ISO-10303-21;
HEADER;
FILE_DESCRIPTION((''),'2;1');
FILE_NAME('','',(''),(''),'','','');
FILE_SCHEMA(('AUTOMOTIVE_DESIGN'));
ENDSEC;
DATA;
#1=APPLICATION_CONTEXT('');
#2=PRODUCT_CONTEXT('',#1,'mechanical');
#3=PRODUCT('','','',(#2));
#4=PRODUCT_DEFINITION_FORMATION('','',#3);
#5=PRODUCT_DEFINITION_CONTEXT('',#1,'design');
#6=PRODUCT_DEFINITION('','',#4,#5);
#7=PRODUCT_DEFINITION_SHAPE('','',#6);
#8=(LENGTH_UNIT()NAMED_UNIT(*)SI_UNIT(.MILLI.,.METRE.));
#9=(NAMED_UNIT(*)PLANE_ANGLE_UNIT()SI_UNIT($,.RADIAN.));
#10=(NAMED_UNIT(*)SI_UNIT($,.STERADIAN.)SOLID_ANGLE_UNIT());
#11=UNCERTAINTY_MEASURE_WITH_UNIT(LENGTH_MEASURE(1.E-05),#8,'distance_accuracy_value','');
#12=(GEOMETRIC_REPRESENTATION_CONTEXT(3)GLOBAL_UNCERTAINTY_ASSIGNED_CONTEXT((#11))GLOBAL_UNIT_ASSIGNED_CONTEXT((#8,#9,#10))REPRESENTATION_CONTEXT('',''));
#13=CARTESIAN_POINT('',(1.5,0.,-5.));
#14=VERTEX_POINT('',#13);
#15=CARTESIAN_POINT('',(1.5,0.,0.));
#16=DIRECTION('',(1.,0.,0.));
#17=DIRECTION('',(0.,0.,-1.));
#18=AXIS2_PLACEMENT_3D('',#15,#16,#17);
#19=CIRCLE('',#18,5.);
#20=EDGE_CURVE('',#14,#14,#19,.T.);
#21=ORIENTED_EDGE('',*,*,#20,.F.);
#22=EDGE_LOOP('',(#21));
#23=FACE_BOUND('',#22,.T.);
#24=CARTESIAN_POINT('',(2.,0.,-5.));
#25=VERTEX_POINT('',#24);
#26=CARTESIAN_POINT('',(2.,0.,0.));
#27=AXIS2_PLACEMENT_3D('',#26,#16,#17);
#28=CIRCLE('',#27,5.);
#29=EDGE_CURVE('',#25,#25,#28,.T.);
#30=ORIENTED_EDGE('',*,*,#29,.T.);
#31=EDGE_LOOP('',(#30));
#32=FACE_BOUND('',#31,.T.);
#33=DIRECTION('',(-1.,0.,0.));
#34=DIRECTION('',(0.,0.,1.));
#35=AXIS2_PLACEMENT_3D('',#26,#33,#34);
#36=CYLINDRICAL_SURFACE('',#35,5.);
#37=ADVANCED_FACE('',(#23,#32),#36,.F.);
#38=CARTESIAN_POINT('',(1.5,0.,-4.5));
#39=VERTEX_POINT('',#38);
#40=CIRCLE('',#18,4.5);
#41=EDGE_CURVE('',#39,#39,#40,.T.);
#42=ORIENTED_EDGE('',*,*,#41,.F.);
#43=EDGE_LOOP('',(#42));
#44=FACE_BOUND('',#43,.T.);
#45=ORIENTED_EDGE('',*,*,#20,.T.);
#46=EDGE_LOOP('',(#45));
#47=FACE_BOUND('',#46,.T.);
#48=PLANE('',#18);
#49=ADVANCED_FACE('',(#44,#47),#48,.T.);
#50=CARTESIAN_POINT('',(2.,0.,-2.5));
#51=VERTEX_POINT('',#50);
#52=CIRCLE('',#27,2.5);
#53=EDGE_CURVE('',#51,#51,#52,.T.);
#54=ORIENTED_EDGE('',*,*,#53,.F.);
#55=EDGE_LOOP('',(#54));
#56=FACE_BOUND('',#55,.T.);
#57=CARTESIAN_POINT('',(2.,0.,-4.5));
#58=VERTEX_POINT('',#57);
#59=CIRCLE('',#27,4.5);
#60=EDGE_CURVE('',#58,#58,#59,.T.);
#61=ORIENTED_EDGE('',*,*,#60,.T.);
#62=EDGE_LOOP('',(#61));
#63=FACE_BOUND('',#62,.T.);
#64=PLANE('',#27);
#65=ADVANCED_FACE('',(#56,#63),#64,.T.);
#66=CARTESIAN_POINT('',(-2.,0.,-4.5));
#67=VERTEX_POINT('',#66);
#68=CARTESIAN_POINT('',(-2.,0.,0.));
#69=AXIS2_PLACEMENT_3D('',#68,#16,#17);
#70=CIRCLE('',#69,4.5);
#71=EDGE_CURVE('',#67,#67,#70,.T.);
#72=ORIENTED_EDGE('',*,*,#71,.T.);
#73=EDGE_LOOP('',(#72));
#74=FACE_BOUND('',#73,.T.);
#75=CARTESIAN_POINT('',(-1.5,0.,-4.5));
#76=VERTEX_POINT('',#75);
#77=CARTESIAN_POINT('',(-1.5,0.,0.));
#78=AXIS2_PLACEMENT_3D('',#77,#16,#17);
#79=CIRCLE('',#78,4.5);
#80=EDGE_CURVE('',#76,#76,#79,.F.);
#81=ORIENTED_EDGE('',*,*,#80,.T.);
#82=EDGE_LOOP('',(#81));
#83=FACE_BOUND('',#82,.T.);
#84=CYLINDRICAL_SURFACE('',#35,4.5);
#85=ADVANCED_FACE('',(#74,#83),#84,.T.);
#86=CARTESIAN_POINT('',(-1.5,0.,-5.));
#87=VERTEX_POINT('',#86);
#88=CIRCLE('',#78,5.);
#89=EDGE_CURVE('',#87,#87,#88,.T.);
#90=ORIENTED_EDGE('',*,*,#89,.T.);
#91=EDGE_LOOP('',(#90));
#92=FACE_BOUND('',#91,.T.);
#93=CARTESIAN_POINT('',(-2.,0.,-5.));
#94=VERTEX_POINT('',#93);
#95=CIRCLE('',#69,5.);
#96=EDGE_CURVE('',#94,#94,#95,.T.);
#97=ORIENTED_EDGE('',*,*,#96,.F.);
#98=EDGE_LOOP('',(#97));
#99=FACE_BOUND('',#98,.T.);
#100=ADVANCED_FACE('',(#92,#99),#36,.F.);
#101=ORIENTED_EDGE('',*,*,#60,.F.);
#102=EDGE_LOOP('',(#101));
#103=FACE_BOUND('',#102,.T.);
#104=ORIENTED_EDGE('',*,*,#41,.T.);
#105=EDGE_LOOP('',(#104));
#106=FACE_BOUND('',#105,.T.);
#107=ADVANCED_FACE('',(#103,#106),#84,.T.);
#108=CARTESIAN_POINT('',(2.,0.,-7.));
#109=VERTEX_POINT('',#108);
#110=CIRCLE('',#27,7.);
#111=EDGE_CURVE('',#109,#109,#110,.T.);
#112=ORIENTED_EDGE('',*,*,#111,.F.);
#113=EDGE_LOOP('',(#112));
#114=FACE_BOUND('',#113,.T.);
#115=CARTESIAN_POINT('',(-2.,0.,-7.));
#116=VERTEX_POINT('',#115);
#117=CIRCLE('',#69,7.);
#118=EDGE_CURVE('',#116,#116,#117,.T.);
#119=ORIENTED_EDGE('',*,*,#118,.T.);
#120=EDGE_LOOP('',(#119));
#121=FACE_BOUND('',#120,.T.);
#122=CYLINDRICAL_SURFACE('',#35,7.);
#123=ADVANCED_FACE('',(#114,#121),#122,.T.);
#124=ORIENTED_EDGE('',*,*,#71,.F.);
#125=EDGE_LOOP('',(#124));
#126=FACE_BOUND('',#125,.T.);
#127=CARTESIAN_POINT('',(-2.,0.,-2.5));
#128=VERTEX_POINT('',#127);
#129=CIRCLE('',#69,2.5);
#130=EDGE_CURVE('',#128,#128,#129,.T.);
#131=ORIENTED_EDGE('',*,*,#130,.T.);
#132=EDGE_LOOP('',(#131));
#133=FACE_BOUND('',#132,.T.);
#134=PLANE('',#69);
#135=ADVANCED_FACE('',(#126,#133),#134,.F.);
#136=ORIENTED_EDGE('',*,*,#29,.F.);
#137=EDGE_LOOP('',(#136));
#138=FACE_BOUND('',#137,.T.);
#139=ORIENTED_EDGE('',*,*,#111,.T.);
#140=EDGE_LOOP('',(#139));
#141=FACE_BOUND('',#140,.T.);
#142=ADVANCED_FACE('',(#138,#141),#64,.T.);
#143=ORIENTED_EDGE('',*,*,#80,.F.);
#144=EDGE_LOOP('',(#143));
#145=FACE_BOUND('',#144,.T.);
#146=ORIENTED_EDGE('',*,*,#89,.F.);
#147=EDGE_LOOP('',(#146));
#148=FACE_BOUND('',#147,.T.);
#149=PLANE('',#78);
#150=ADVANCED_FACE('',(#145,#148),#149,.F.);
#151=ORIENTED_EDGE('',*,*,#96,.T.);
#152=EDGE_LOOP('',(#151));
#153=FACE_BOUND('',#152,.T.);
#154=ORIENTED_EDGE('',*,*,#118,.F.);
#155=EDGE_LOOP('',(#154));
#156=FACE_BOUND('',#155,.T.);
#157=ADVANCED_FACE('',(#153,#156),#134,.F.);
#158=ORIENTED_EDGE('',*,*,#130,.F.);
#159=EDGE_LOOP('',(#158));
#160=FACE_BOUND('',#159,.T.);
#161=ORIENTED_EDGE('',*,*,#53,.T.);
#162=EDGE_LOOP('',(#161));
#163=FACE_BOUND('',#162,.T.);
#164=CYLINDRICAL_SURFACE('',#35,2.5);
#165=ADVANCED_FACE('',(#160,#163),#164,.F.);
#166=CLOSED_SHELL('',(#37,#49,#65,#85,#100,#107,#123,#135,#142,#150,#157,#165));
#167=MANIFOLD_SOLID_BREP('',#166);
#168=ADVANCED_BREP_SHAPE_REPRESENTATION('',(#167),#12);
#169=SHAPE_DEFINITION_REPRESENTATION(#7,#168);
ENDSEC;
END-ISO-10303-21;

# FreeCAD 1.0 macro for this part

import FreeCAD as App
import Part
import Sketcher

V = App.Vector

doc = App.newDocument("Part")
params = doc.addObject("Spreadsheet::Sheet", "Params")
for row, (alias, value) in enumerate([
    ("sketch1_diameter", "14 mm"),
    ("sketch1_diameter2", "10 mm"),
    ("pad1_length", "4 mm"),
    ("sketch2_diameter", "10 mm"),
    ("sketch2_diameter2", "9 mm"),
    ("pad2_length", "3 mm"),
    ("sketch3_diameter", "9 mm"),
    ("sketch3_diameter2", "5 mm"),
    ("pad3_length", "4 mm"),
], start=1):
    params.set(f"A{row}", alias)
    params.set(f"B{row}", "=" + value)
    params.setAlias(f"B{row}", alias)

body = doc.addObject("PartDesign::Body", "Body")

sketch1 = doc.addObject("Sketcher::SketchObject", "Sketch")
body.addObject(sketch1)
sketch1.AttachmentSupport = (doc.YZ_Plane, [""])
sketch1.MapMode = "FlatFace"
sketch1.addGeometry([
    Part.Circle(V(0, 0, 0), V(0, 0, 1), 7),
    Part.Circle(V(0, 0, 0), V(0, 0, 1), 5),
], False)
sketch1.addConstraint([
    Sketcher.Constraint("Coincident", 0, 3, -1, 1),
    Sketcher.Constraint("Coincident", 1, 3, -1, 1),
    Sketcher.Constraint("Diameter", 0, 14.0),
    Sketcher.Constraint("Diameter", 1, 10.0),
])
sketch1.setExpression("Constraints[2]", "Params.sketch1_diameter")
sketch1.setExpression("Constraints[3]", "Params.sketch1_diameter2")
pad1 = doc.addObject("PartDesign::Pad", "Pad")
body.addObject(pad1)
pad1.Profile = sketch1
pad1.setExpression("Length", "Params.pad1_length")
pad1.Midplane = True

sketch2 = doc.addObject("Sketcher::SketchObject", "Sketch001")
body.addObject(sketch2)
sketch2.AttachmentSupport = (doc.YZ_Plane, [""])
sketch2.MapMode = "FlatFace"
sketch2.addGeometry([
    Part.Circle(V(0, 0, 0), V(0, 0, 1), 5),
    Part.Circle(V(0, 0, 0), V(0, 0, 1), 4.5),
], False)
sketch2.addConstraint([
    Sketcher.Constraint("Coincident", 0, 3, -1, 1),
    Sketcher.Constraint("Coincident", 1, 3, -1, 1),
    Sketcher.Constraint("Diameter", 0, 10.0),
    Sketcher.Constraint("Diameter", 1, 9.0),
])
sketch2.setExpression("Constraints[2]", "Params.sketch2_diameter")
sketch2.setExpression("Constraints[3]", "Params.sketch2_diameter2")
pad2 = doc.addObject("PartDesign::Pad", "Pad001")
body.addObject(pad2)
pad2.Profile = sketch2
pad2.setExpression("Length", "Params.pad2_length")
pad2.Midplane = True

sketch3 = doc.addObject("Sketcher::SketchObject", "Sketch002")
body.addObject(sketch3)
sketch3.AttachmentSupport = (doc.YZ_Plane, [""])
sketch3.MapMode = "FlatFace"
sketch3.addGeometry([
    Part.Circle(V(0, 0, 0), V(0, 0, 1), 4.5),
    Part.Circle(V(0, 0, 0), V(0, 0, 1), 2.5),
], False)
sketch3.addConstraint([
    Sketcher.Constraint("Coincident", 0, 3, -1, 1),
    Sketcher.Constraint("Coincident", 1, 3, -1, 1),
    Sketcher.Constraint("Diameter", 0, 9.0),
    Sketcher.Constraint("Diameter", 1, 5.0),
])
sketch3.setExpression("Constraints[2]", "Params.sketch3_diameter")
sketch3.setExpression("Constraints[3]", "Params.sketch3_diameter2")
pad3 = doc.addObject("PartDesign::Pad", "Pad002")
body.addObject(pad3)
pad3.Profile = sketch3
pad3.setExpression("Length", "Params.pad3_length")
pad3.Midplane = True

doc.recompute()
